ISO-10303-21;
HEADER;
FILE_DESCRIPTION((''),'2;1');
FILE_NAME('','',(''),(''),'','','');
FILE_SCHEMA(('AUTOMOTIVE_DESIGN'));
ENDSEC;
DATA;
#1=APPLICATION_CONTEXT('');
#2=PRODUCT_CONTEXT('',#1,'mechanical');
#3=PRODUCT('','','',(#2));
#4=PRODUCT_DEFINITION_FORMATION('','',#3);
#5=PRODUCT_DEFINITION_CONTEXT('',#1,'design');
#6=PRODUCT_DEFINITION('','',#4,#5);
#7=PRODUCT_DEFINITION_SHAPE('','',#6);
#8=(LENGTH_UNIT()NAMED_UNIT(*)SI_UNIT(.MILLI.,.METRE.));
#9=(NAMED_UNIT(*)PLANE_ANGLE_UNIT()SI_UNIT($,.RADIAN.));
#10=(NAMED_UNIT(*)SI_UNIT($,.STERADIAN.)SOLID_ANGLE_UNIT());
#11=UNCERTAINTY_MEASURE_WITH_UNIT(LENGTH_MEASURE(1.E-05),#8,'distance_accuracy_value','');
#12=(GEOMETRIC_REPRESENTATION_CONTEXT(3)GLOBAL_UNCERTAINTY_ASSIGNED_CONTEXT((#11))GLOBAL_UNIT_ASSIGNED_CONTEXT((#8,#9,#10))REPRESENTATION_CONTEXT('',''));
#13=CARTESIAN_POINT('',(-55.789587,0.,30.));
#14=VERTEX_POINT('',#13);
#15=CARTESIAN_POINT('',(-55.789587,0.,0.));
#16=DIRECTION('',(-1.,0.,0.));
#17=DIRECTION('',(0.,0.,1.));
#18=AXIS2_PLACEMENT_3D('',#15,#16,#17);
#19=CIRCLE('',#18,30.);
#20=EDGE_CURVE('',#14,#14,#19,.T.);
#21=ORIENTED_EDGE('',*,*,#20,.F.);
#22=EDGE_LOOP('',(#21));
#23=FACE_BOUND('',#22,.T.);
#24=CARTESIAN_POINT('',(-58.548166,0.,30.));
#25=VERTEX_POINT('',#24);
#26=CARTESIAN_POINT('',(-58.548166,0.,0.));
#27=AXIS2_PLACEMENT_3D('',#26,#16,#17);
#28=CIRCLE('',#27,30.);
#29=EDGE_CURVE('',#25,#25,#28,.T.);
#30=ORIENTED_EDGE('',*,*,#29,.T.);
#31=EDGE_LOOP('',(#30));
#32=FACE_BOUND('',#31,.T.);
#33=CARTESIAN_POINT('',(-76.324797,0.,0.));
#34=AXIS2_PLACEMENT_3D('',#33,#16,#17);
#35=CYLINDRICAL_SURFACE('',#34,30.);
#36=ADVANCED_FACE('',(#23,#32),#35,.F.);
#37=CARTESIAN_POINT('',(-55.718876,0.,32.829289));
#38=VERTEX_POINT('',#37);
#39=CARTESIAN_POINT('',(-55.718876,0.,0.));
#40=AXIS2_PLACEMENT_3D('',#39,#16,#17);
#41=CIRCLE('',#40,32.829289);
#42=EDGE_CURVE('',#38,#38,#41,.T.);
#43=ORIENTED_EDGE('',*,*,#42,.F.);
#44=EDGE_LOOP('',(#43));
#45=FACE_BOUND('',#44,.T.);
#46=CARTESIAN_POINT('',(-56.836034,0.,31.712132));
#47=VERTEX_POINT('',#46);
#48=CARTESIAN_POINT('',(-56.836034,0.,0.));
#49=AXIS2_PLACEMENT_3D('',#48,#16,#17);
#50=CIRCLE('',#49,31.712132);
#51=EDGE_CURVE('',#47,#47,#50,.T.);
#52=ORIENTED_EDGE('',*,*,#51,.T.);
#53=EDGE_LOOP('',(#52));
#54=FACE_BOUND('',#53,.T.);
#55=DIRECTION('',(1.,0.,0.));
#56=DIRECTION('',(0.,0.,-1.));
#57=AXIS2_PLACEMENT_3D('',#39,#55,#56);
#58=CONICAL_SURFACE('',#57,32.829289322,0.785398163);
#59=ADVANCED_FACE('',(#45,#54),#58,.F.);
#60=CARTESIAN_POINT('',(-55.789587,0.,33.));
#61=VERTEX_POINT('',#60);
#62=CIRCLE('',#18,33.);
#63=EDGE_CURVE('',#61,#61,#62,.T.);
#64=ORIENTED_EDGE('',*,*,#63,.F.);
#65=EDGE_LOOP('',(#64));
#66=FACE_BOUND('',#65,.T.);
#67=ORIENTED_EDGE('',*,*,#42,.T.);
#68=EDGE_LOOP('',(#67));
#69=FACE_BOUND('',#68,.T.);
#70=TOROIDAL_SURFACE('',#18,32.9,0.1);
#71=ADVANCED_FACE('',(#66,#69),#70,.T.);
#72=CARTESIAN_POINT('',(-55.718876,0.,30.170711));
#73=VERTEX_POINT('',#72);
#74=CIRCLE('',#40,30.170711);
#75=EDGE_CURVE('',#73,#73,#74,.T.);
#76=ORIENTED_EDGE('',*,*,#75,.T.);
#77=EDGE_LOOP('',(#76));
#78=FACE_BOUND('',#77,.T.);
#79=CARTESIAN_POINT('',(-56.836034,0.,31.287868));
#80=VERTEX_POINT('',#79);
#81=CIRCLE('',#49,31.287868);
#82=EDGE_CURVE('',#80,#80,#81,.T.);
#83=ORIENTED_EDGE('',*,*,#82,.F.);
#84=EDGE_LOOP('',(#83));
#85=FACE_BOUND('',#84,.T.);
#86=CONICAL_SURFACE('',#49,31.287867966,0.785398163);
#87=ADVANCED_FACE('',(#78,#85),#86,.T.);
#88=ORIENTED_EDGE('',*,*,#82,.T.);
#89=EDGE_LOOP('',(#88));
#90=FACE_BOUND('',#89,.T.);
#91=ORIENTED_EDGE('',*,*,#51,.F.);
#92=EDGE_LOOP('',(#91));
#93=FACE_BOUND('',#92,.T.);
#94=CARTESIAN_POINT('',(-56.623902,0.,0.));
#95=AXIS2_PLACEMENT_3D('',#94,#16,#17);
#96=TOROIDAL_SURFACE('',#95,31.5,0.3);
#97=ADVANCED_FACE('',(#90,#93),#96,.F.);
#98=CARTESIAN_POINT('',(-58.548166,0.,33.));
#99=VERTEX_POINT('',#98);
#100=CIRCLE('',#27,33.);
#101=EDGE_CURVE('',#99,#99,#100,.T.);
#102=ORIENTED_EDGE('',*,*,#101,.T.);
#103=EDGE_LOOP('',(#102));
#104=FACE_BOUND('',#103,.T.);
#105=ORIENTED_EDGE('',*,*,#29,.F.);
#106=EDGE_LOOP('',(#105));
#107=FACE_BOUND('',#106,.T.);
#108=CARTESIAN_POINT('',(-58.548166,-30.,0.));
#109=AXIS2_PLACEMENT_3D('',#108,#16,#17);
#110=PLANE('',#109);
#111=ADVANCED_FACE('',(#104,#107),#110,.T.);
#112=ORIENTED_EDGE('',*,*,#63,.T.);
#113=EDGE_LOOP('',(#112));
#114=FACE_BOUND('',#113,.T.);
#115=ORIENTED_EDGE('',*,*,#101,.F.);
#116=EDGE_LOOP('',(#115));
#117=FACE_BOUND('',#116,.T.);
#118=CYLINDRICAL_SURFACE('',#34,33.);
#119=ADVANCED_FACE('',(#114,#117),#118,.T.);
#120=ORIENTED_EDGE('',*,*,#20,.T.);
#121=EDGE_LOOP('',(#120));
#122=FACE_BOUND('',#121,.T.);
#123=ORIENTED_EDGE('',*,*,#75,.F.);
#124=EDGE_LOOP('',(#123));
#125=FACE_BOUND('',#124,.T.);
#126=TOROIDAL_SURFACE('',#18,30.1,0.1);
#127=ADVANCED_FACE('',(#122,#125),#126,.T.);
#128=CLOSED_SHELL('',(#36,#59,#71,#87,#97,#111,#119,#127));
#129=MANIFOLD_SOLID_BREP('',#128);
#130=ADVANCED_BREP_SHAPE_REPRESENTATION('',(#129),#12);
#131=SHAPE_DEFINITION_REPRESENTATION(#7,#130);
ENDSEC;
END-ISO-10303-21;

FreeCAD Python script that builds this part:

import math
import FreeCAD as App
import Part
import Sketcher
from FreeCAD import Vector
Q = App.Units.Quantity

doc = App.newDocument("Part")
body = doc.addObject("PartDesign::Body", "Body")

sketch1 = doc.addObject("Sketcher::SketchObject", "Sketch")
body.addObject(sketch1)
sketch1.AttachmentSupport = (doc.XY_Plane, [""])
sketch1.MapMode = "FlatFace"
sketch1.addGeometry([
    Part.LineSegment(Vector(-58.55, -33, 0), Vector(-55.79, -33, 0)),
    Part.ArcOfCircle(Part.Circle(Vector(-55.79, -32.9, 0), Vector(0, 0, 1), 0.1), math.radians(-90), math.radians(45)),
    Part.LineSegment(Vector(-55.72, -32.83, 0), Vector(-56.84, -31.71, 0)),
    Part.ArcOfCircle(Part.Circle(Vector(-56.62, -31.5, 0), Vector(0, 0, 1), 0.3), math.radians(135), math.radians(225)),
    Part.LineSegment(Vector(-56.84, -31.29, 0), Vector(-55.72, -30.17, 0)),
    Part.ArcOfCircle(Part.Circle(Vector(-55.79, -30.1, 0), Vector(0, 0, 1), 0.1), math.radians(-45), math.radians(90)),
    Part.LineSegment(Vector(-55.79, -30, 0), Vector(-58.55, -30, 0)),
    Part.LineSegment(Vector(-58.55, -30, 0), Vector(-58.55, -33, 0)),
], False)
sketch1.addConstraint([
    Sketcher.Constraint("Tangent", 0, 2, 1, 1),
    Sketcher.Constraint("Tangent", 1, 2, 2, 1),
    Sketcher.Constraint("Tangent", 2, 2, 3, 2),
    Sketcher.Constraint("Tangent", 3, 1, 4, 1),
    Sketcher.Constraint("Tangent", 4, 2, 5, 1),
    Sketcher.Constraint("Tangent", 5, 2, 6, 1),
    Sketcher.Constraint("Coincident", 6, 2, 7, 1),
    Sketcher.Constraint("Coincident", 7, 2, 0, 1),
    Sketcher.Constraint("Horizontal", 0),
    Sketcher.Constraint("Horizontal", 6),
    Sketcher.Constraint("Vertical", 7),
    Sketcher.Constraint("Equal", 1, 5),
    Sketcher.Constraint("Perpendicular", 2, 4),
    Sketcher.Constraint("Vertical", 1, 3, 5, 3),
    Sketcher.Constraint("Vertical", 2, 2, 3, 1),
    Sketcher.Constraint("Radius", 1, Q("0.1 mm")),
    Sketcher.Constraint("Radius", 3, Q("0.3 mm")),
    Sketcher.Constraint("DistanceY", 7, 2, 7, 1, Q("3 mm")),
    Sketcher.Constraint("DistanceY", 0, 2, -1, 1, Q("33 mm")),
    Sketcher.Constraint("DistanceX", 0, 1, 0, 2, Q("2.758579 mm")),
    Sketcher.Constraint("DistanceX", 3, 3, -1, 1, Q("56.623902 mm")),
])
revolution = doc.addObject("PartDesign::Revolution", "Revolution")
body.addObject(revolution)
revolution.Profile = sketch1
revolution.ReferenceAxis = (sketch1, ["H_Axis"])
revolution.Angle = 360

doc.recompute()
